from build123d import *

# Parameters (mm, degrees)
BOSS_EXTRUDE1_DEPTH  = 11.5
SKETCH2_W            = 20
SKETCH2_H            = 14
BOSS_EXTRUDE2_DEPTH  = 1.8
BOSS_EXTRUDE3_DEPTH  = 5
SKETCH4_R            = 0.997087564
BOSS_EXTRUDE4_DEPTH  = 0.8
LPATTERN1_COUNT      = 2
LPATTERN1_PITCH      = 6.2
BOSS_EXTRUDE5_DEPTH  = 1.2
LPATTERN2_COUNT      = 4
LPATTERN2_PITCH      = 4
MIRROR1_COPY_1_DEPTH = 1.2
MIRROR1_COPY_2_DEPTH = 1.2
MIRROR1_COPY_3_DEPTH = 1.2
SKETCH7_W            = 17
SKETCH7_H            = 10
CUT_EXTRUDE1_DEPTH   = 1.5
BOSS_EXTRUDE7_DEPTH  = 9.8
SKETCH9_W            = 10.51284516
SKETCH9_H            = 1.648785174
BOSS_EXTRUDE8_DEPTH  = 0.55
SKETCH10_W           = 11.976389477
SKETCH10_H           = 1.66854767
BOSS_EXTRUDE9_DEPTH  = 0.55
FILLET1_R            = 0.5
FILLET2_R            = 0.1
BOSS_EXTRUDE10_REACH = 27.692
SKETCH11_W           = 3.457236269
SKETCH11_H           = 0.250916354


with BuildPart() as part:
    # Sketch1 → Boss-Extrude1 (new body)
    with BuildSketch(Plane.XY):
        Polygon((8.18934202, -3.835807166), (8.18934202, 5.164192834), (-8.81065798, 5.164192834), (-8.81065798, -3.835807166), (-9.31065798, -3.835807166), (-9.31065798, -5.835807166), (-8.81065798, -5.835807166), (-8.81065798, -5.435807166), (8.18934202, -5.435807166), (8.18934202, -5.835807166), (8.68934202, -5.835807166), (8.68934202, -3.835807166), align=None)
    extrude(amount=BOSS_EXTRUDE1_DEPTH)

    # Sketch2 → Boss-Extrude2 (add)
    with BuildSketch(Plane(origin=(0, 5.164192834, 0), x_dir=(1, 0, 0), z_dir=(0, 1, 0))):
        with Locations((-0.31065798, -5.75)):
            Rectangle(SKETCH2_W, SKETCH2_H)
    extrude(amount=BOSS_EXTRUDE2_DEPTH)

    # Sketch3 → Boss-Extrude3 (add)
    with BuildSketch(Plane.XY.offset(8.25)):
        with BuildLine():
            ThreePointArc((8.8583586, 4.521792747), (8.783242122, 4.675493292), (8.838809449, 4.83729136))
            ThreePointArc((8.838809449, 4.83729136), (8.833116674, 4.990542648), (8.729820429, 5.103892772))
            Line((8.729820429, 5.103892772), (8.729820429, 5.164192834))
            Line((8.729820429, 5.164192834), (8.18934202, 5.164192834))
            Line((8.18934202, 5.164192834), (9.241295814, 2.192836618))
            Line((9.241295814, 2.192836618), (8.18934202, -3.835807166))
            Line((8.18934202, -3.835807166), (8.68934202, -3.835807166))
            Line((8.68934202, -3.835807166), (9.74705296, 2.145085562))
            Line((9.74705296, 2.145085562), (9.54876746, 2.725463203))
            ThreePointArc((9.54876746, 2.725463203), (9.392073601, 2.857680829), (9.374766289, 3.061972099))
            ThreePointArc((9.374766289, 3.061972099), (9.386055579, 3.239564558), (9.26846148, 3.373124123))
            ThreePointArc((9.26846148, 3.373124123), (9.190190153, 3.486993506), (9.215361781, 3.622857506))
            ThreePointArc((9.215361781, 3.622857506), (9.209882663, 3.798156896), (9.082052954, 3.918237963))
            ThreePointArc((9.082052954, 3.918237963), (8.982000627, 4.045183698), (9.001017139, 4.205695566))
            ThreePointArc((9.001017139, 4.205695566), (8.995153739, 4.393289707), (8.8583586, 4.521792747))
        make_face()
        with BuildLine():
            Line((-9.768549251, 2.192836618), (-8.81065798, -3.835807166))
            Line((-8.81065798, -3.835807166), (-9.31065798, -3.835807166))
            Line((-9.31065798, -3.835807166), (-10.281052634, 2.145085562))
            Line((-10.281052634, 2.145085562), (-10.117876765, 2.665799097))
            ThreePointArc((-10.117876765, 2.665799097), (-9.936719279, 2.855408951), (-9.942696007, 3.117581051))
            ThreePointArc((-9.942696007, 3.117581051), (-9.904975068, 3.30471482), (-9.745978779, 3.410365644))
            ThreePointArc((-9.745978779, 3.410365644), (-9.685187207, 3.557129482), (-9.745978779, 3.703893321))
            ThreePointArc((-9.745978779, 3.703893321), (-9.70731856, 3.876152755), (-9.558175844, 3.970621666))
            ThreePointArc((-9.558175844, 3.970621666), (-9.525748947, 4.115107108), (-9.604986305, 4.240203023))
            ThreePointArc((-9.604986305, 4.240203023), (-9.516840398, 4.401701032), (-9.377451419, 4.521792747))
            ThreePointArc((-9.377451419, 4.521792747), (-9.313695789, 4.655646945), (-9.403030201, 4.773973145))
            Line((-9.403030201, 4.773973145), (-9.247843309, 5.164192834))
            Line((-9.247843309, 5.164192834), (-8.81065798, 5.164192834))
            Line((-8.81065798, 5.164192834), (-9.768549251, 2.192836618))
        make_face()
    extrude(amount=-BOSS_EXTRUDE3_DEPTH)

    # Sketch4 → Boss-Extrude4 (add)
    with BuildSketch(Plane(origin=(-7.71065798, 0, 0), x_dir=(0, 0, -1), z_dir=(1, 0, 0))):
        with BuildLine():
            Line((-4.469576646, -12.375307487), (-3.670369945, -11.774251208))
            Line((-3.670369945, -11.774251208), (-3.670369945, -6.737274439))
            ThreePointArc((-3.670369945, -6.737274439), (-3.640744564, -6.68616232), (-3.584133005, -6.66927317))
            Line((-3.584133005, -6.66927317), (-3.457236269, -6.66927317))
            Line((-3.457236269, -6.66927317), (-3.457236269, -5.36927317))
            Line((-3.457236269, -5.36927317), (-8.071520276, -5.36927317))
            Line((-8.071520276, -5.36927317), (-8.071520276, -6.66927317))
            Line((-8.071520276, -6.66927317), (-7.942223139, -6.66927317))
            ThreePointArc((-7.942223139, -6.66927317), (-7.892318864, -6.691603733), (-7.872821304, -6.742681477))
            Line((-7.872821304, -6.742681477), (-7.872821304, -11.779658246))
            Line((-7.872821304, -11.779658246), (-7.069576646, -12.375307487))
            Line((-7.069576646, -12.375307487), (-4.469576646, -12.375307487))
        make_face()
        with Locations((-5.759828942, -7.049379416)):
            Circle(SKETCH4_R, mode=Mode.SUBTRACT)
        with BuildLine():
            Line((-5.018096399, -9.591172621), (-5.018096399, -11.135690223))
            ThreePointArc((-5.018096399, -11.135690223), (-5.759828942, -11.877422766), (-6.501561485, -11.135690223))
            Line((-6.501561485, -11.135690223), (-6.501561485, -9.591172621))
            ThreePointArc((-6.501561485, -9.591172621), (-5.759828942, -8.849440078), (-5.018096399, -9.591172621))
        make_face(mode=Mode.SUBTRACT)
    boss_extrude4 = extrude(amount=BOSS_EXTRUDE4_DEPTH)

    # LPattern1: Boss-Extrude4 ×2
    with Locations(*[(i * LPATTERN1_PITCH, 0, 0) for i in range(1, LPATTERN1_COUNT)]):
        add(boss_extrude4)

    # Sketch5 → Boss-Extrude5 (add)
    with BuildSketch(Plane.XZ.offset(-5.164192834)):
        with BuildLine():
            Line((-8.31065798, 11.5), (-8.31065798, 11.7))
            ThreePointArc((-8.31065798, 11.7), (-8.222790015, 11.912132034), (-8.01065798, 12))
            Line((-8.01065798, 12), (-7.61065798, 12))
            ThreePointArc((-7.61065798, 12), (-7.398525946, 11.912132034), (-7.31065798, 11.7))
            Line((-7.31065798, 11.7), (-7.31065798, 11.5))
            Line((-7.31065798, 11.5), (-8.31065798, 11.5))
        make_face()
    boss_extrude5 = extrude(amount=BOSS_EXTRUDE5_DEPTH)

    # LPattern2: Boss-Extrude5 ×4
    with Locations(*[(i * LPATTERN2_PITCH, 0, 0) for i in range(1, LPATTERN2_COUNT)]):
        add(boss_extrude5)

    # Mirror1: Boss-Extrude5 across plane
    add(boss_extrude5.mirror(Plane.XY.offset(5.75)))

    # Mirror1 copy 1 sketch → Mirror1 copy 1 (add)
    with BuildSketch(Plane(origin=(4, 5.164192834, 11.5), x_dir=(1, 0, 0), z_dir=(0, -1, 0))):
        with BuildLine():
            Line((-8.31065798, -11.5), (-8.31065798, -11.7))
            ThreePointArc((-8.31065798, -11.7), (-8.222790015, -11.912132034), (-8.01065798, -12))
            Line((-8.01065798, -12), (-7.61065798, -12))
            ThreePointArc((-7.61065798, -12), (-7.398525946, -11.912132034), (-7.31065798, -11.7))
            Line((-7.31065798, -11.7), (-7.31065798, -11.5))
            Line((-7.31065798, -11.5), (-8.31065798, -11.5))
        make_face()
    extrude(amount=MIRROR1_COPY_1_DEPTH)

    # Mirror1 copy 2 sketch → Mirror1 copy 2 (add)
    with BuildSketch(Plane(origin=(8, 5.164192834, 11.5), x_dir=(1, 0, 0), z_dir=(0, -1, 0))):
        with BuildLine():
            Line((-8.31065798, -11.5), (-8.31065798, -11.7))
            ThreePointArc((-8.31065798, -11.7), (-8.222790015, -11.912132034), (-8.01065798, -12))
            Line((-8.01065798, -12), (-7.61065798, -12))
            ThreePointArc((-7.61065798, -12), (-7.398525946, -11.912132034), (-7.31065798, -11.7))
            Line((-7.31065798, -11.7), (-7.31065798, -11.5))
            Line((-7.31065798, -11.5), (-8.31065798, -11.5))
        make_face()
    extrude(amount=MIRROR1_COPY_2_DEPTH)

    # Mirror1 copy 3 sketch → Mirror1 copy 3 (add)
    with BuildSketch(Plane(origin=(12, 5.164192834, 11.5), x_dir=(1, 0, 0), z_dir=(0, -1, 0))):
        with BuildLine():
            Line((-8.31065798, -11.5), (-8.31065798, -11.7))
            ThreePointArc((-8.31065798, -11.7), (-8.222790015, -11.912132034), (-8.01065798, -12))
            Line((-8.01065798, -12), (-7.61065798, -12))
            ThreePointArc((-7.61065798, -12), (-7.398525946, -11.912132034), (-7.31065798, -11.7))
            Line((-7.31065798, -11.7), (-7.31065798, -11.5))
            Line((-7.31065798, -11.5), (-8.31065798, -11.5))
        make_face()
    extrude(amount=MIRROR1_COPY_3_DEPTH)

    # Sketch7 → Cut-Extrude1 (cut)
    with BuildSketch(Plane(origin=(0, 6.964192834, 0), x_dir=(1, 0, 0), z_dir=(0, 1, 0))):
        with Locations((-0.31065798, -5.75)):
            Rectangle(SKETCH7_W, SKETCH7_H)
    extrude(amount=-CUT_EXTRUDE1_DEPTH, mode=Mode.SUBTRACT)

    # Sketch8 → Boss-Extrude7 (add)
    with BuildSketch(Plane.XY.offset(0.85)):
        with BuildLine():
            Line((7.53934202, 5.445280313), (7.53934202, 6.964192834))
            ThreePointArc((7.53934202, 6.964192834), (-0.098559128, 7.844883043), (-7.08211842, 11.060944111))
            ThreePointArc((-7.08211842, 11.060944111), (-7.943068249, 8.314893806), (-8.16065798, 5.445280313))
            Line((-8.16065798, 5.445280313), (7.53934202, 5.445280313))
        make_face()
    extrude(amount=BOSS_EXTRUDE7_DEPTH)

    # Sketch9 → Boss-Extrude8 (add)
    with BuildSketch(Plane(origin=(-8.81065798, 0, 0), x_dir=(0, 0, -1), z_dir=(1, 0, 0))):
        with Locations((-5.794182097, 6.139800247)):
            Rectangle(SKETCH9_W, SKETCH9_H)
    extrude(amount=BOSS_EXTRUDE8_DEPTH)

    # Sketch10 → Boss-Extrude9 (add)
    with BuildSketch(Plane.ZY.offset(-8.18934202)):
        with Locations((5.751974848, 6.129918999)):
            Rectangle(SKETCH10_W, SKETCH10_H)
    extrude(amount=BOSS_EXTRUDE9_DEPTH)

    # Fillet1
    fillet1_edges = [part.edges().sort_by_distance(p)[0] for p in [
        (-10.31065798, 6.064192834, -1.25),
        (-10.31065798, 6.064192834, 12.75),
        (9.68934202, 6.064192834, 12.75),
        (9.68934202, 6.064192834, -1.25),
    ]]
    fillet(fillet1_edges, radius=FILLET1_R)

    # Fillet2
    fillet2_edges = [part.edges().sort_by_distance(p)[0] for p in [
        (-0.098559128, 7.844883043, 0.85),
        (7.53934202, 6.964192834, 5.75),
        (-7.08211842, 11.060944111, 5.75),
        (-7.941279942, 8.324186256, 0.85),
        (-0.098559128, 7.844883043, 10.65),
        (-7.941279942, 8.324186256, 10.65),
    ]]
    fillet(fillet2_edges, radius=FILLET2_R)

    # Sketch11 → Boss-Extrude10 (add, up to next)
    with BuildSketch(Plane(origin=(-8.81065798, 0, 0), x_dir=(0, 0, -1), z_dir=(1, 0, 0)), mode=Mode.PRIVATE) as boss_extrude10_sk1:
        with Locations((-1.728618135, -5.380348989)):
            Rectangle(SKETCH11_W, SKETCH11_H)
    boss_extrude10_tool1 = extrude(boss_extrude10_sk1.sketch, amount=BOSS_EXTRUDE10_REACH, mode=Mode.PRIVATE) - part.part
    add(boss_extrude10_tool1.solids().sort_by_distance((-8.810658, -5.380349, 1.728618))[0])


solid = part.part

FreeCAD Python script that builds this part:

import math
import FreeCAD as App
import Part
import Sketcher


def edges_at(feature, points):
    """Names of the edges that pass closest to the given points."""
    edges = feature.Shape.Edges
    near = lambda p: min(range(len(edges)), key=lambda i: edges[i].distToShape(Part.Vertex(*p))[0])
    return sorted({f"Edge{near(p) + 1}" for p in points})

doc = App.newDocument("Part")
body = doc.addObject("PartDesign::Body", "Body")

# Sketch on XY plane
sketch1 = body.newObject("Sketcher::SketchObject", "Sketch")
sketch1.AttachmentSupport = (doc.getObject("XY_Plane"), [""])
sketch1.MapMode = "FlatFace"
sketch1.addGeometry(Part.LineSegment(App.Vector(8.19, -3.84, 0), App.Vector(8.19, 5.16, 0)), False)
sketch1.addGeometry(Part.LineSegment(App.Vector(8.19, 5.16, 0), App.Vector(-8.81, 5.16, 0)), False)
sketch1.addGeometry(Part.LineSegment(App.Vector(-8.81, 5.16, 0), App.Vector(-8.81, -3.84, 0)), False)
sketch1.addGeometry(Part.LineSegment(App.Vector(-8.81, -3.84, 0), App.Vector(-9.31, -3.84, 0)), False)
sketch1.addGeometry(Part.LineSegment(App.Vector(-9.31, -3.84, 0), App.Vector(-9.31, -5.84, 0)), False)
sketch1.addGeometry(Part.LineSegment(App.Vector(-9.31, -5.84, 0), App.Vector(-8.81, -5.84, 0)), False)
sketch1.addGeometry(Part.LineSegment(App.Vector(-8.81, -5.84, 0), App.Vector(-8.81, -5.44, 0)), False)
sketch1.addGeometry(Part.LineSegment(App.Vector(-8.81, -5.44, 0), App.Vector(8.19, -5.44, 0)), False)
sketch1.addGeometry(Part.LineSegment(App.Vector(8.19, -5.44, 0), App.Vector(8.19, -5.84, 0)), False)
sketch1.addGeometry(Part.LineSegment(App.Vector(8.19, -5.84, 0), App.Vector(8.69, -5.84, 0)), False)
sketch1.addGeometry(Part.LineSegment(App.Vector(8.69, -5.84, 0), App.Vector(8.69, -3.84, 0)), False)
sketch1.addGeometry(Part.LineSegment(App.Vector(8.69, -3.84, 0), App.Vector(8.19, -3.84, 0)), False)
sketch1.addConstraint(Sketcher.Constraint("Coincident", 0, 2, 1, 1))
sketch1.addConstraint(Sketcher.Constraint("Coincident", 1, 2, 2, 1))
sketch1.addConstraint(Sketcher.Constraint("Coincident", 2, 2, 3, 1))
sketch1.addConstraint(Sketcher.Constraint("Coincident", 3, 2, 4, 1))
sketch1.addConstraint(Sketcher.Constraint("Coincident", 4, 2, 5, 1))
sketch1.addConstraint(Sketcher.Constraint("Coincident", 5, 2, 6, 1))
sketch1.addConstraint(Sketcher.Constraint("Coincident", 6, 2, 7, 1))
sketch1.addConstraint(Sketcher.Constraint("Coincident", 7, 2, 8, 1))
sketch1.addConstraint(Sketcher.Constraint("Coincident", 8, 2, 9, 1))
sketch1.addConstraint(Sketcher.Constraint("Coincident", 9, 2, 10, 1))
sketch1.addConstraint(Sketcher.Constraint("Coincident", 10, 2, 11, 1))
sketch1.addConstraint(Sketcher.Constraint("Coincident", 11, 2, 0, 1))
sketch1.addConstraint(Sketcher.Constraint("Vertical", 0))
sketch1.addConstraint(Sketcher.Constraint("Horizontal", 1))
sketch1.addConstraint(Sketcher.Constraint("Vertical", 2))
sketch1.addConstraint(Sketcher.Constraint("Horizontal", 3))
sketch1.addConstraint(Sketcher.Constraint("Vertical", 4))
sketch1.addConstraint(Sketcher.Constraint("Horizontal", 5))
sketch1.addConstraint(Sketcher.Constraint("Vertical", 6))
sketch1.addConstraint(Sketcher.Constraint("Horizontal", 7))
sketch1.addConstraint(Sketcher.Constraint("Vertical", 8))
sketch1.addConstraint(Sketcher.Constraint("Horizontal", 9))
sketch1.addConstraint(Sketcher.Constraint("Vertical", 10))
sketch1.addConstraint(Sketcher.Constraint("Horizontal", 11))
sketch1.addConstraint(Sketcher.Constraint("Horizontal", 5, 2, 8, 2))
sketch1.addConstraint(Sketcher.Constraint("Horizontal", 3, 2, 10, 2))
sketch1.addConstraint(Sketcher.Constraint("Vertical", 2, 2, 5, 2))
sketch1.addConstraint(Sketcher.Constraint("Vertical", 0, 2, 7, 2))
sketch1.addConstraint(Sketcher.Constraint("Equal", 5, 9))
sketch1.addConstraint(Sketcher.Constraint("DistanceX", 1, 2, 1, 1, 17.0))
sketch1.addConstraint(Sketcher.Constraint("DistanceY", 0, 1, 0, 2, 9.0))
sketch1.addConstraint(Sketcher.Constraint("DistanceY", 4, 2, 4, 1, 2.0))
sketch1.addConstraint(Sketcher.Constraint("DistanceX", 3, 2, 3, 1, 0.5))
sketch1.addConstraint(Sketcher.Constraint("DistanceY", 6, 1, 6, 2, 0.4))
sketch1.addConstraint(Sketcher.Constraint("DistanceX", -1, 1, 0, 2, 8.189342))
sketch1.addConstraint(Sketcher.Constraint("DistanceY", -1, 1, 0, 2, 5.164193))
pad1 = body.newObject("PartDesign::Pad", "Pad")
pad1.Profile = sketch1
pad1.Length = 11.5

# Sketch on XZ plane
sketch2 = body.newObject("Sketcher::SketchObject", "Sketch001")
sketch2.AttachmentSupport = (doc.getObject("XZ_Plane"), [""])
sketch2.MapMode = "FlatFace"
sketch2.AttachmentOffset = App.Placement(App.Vector(0, 0, -5.164193), App.Rotation())
sketch2.addGeometry(Part.LineSegment(App.Vector(-10, -1, 0), App.Vector(-10, 13, 0)), False)
sketch2.addGeometry(Part.LineSegment(App.Vector(-10, 13, 0), App.Vector(10, 13, 0)), False)
sketch2.addGeometry(Part.LineSegment(App.Vector(10, 13, 0), App.Vector(10, -1, 0)), False)
sketch2.addGeometry(Part.LineSegment(App.Vector(10, -1, 0), App.Vector(-10, -1, 0)), False)
sketch2.addConstraint(Sketcher.Constraint("Coincident", 0, 2, 1, 1))
sketch2.addConstraint(Sketcher.Constraint("Coincident", 1, 2, 2, 1))
sketch2.addConstraint(Sketcher.Constraint("Coincident", 2, 2, 3, 1))
sketch2.addConstraint(Sketcher.Constraint("Coincident", 3, 2, 0, 1))
sketch2.addConstraint(Sketcher.Constraint("Vertical", 0))
sketch2.addConstraint(Sketcher.Constraint("Horizontal", 1))
sketch2.addConstraint(Sketcher.Constraint("Vertical", 2))
sketch2.addConstraint(Sketcher.Constraint("Horizontal", 3))
sketch2.addConstraint(Sketcher.Constraint("DistanceX", 1, 1, 1, 2, 20.0))
sketch2.addConstraint(Sketcher.Constraint("DistanceY", 0, 1, 0, 2, 14.0))
sketch2.addConstraint(Sketcher.Constraint("DistanceY", -1, 1, 0, 2, 12.75))
sketch2.addConstraint(Sketcher.Constraint("DistanceX", 0, 2, -1, 1, 10.310658))
pad2 = body.newObject("PartDesign::Pad", "Pad001")
pad2.Profile = sketch2
pad2.Length = 1.8
pad2.Reversed = True

# Sketch on XY plane
sketch3 = body.newObject("Sketcher::SketchObject", "Sketch002")
sketch3.AttachmentSupport = (doc.getObject("XY_Plane"), [""])
sketch3.MapMode = "FlatFace"
sketch3.AttachmentOffset = App.Placement(App.Vector(0, 0, 8.25), App.Rotation())
sketch3.addGeometry(Part.ArcOfCircle(Part.Circle(App.Vector(9.01, 4.69, 0), App.Vector(0, 0, 1), 0.22), math.radians(139), math.radians(229)), False)
sketch3.addGeometry(Part.ArcOfCircle(Part.Circle(App.Vector(8.63, 4.91, 0), App.Vector(0, 0, 1), 0.22), math.radians(-18), math.radians(62)), False)
sketch3.addGeometry(Part.LineSegment(App.Vector(8.73, 5.1, 0), App.Vector(8.73, 5.16, 0)), False)
sketch3.addGeometry(Part.LineSegment(App.Vector(8.73, 5.16, 0), App.Vector(8.19, 5.16, 0)), False)
sketch3.addGeometry(Part.LineSegment(App.Vector(8.19, 5.16, 0), App.Vector(9.24, 2.19, 0)), False)
sketch3.addGeometry(Part.LineSegment(App.Vector(9.24, 2.19, 0), App.Vector(8.19, -3.84, 0)), False)
sketch3.addGeometry(Part.LineSegment(App.Vector(8.19, -3.84, 0), App.Vector(8.69, -3.84, 0)), False)
sketch3.addGeometry(Part.LineSegment(App.Vector(8.69, -3.84, 0), App.Vector(9.75, 2.15, 0)), False)
sketch3.addGeometry(Part.LineSegment(App.Vector(9.75, 2.15, 0), App.Vector(9.55, 2.73, 0)), False)
sketch3.addGeometry(Part.ArcOfCircle(Part.Circle(App.Vector(9.63, 2.98, 0), App.Vector(0, 0, 1), 0.27), math.radians(162), math.radians(252)), False)
sketch3.addGeometry(Part.ArcOfCircle(Part.Circle(App.Vector(9.17, 3.16, 0), App.Vector(0, 0, 1), 0.23), math.radians(-26), math.radians(64)), False)
sketch3.addGeometry(Part.ArcOfCircle(Part.Circle(App.Vector(9.37, 3.52, 0), App.Vector(0, 0, 1), 0.18), math.radians(147), math.radians(237)), False)
sketch3.addGeometry(Part.ArcOfCircle(Part.Circle(App.Vector(9, 3.7, 0), App.Vector(0, 0, 1), 0.23), math.radians(-21), math.radians(69)), False)
sketch3.addGeometry(Part.ArcOfCircle(Part.Circle(App.Vector(9.19, 4.1, 0), App.Vector(0, 0, 1), 0.21), math.radians(151), math.radians(241)), False)
sketch3.addGeometry(Part.ArcOfCircle(Part.Circle(App.Vector(8.77, 4.29, 0), App.Vector(0, 0, 1), 0.25), math.radians(-21), math.radians(69)), False)
sketch3.addGeometry(Part.LineSegment(App.Vector(-8.81, -3.84, 0), App.Vector(-9.77, 2.19, 0)), False)
sketch3.addGeometry(Part.LineSegment(App.Vector(-9.77, 2.19, 0), App.Vector(-8.81, 5.16, 0)), False)
sketch3.addGeometry(Part.LineSegment(App.Vector(-8.81, 5.16, 0), App.Vector(-9.25, 5.16, 0)), False)
sketch3.addGeometry(Part.LineSegment(App.Vector(-9.25, 5.16, 0), App.Vector(-9.4, 4.77, 0)), False)
sketch3.addGeometry(Part.ArcOfCircle(Part.Circle(App.Vector(-9.46, 4.64, 0), App.Vector(0, 0, 1), 0.14), math.radians(-57), math.radians(68)), False)
sketch3.addGeometry(Part.ArcOfCircle(Part.Circle(App.Vector(-9.12, 4.08, 0), App.Vector(0, 0, 1), 0.51), math.radians(120), math.radians(162)), False)
sketch3.addGeometry(Part.ArcOfCircle(Part.Circle(App.Vector(-9.72, 4.08, 0), App.Vector(0, 0, 1), 0.19), math.radians(-35), math.radians(55)), False)
sketch3.addGeometry(Part.ArcOfCircle(Part.Circle(App.Vector(-9.52, 3.74, 0), App.Vector(0, 0, 1), 0.23), math.radians(100), math.radians(190)), False)
sketch3.addGeometry(Part.ArcOfCircle(Part.Circle(App.Vector(-9.89, 3.56, 0), App.Vector(0, 0, 1), 0.21), math.radians(-45), math.radians(45)), False)
sketch3.addGeometry(Part.ArcOfCircle(Part.Circle(App.Vector(-9.7, 3.17, 0), App.Vector(0, 0, 1), 0.25), math.radians(101), math.radians(191)), False)
sketch3.addGeometry(Part.ArcOfCircle(Part.Circle(App.Vector(-10.26, 2.98, 0), App.Vector(0, 0, 1), 0.34), math.radians(-66), math.radians(24)), False)
sketch3.addGeometry(Part.LineSegment(App.Vector(-10.12, 2.67, 0), App.Vector(-10.28, 2.15, 0)), False)
sketch3.addGeometry(Part.LineSegment(App.Vector(-10.28, 2.15, 0), App.Vector(-9.31, -3.84, 0)), False)
sketch3.addGeometry(Part.LineSegment(App.Vector(-9.31, -3.84, 0), App.Vector(-8.81, -3.84, 0)), False)
sketch3.addConstraint(Sketcher.Constraint("Coincident", 0, 1, 1, 1))
sketch3.addConstraint(Sketcher.Constraint("Coincident", 1, 2, 2, 1))
sketch3.addConstraint(Sketcher.Constraint("Coincident", 2, 2, 3, 1))
sketch3.addConstraint(Sketcher.Constraint("Coincident", 3, 2, 4, 1))
sketch3.addConstraint(Sketcher.Constraint("Coincident", 4, 2, 5, 1))
sketch3.addConstraint(Sketcher.Constraint("Coincident", 5, 2, 6, 1))
sketch3.addConstraint(Sketcher.Constraint("Coincident", 6, 2, 7, 1))
sketch3.addConstraint(Sketcher.Constraint("Coincident", 7, 2, 8, 1))
sketch3.addConstraint(Sketcher.Constraint("Coincident", 8, 2, 9, 2))
sketch3.addConstraint(Sketcher.Constraint("Coincident", 9, 1, 10, 1))
sketch3.addConstraint(Sketcher.Constraint("Coincident", 10, 2, 11, 2))
sketch3.addConstraint(Sketcher.Constraint("Coincident", 11, 1, 12, 1))
sketch3.addConstraint(Sketcher.Constraint("Coincident", 12, 2, 13, 2))
sketch3.addConstraint(Sketcher.Constraint("Coincident", 13, 1, 14, 1))
sketch3.addConstraint(Sketcher.Constraint("Coincident", 14, 2, 0, 2))
sketch3.addConstraint(Sketcher.Constraint("Coincident", 15, 2, 16, 1))
sketch3.addConstraint(Sketcher.Constraint("Coincident", 16, 2, 17, 1))
sketch3.addConstraint(Sketcher.Constraint("Coincident", 17, 2, 18, 1))
sketch3.addConstraint(Sketcher.Constraint("Coincident", 18, 2, 19, 2))
sketch3.addConstraint(Sketcher.Constraint("Coincident", 19, 1, 20, 1))
sketch3.addConstraint(Sketcher.Constraint("Coincident", 20, 2, 21, 2))
sketch3.addConstraint(Sketcher.Constraint("Coincident", 21, 1, 22, 1))
sketch3.addConstraint(Sketcher.Constraint("Coincident", 22, 2, 23, 2))
sketch3.addConstraint(Sketcher.Constraint("Coincident", 23, 1, 24, 1))
sketch3.addConstraint(Sketcher.Constraint("Coincident", 24, 2, 25, 2))
sketch3.addConstraint(Sketcher.Constraint("Coincident", 25, 1, 26, 1))
sketch3.addConstraint(Sketcher.Constraint("Coincident", 26, 2, 27, 1))
sketch3.addConstraint(Sketcher.Constraint("Coincident", 27, 2, 28, 1))
sketch3.addConstraint(Sketcher.Constraint("Coincident", 28, 2, 15, 1))
sketch3.addConstraint(Sketcher.Constraint("Vertical", 2))
sketch3.addConstraint(Sketcher.Constraint("Horizontal", 3))
sketch3.addConstraint(Sketcher.Constraint("Horizontal", 6))
sketch3.addConstraint(Sketcher.Constraint("Horizontal", 17))
sketch3.addConstraint(Sketcher.Constraint("Horizontal", 28))
sketch3.addConstraint(Sketcher.Constraint("Horizontal", 4, 2, 15, 2))
sketch3.addConstraint(Sketcher.Constraint("Horizontal", 3, 2, 16, 2))
sketch3.addConstraint(Sketcher.Constraint("Horizontal", 14, 2, 19, 1))
sketch3.addConstraint(Sketcher.Constraint("Horizontal", 12, 3, 22, 2))
sketch3.addConstraint(Sketcher.Constraint("Horizontal", 7, 2, 26, 2))
sketch3.addConstraint(Sketcher.Constraint("Horizontal", 6, 2, 27, 2))
sketch3.addConstraint(Sketcher.Constraint("Vertical", 3, 2, 5, 2))
sketch3.addConstraint(Sketcher.Constraint("Vertical", 12, 3, 13, 1))
sketch3.addConstraint(Sketcher.Constraint("Vertical", 22, 2, 23, 1))
sketch3.addConstraint(Sketcher.Constraint("Vertical", 16, 2, 28, 2))
sketch3.addConstraint(Sketcher.Constraint("Equal", 6, 28))
sketch3.addConstraint(Sketcher.Constraint("DistanceX", 6, 1, 6, 2, 0.5))
sketch3.addConstraint(Sketcher.Constraint("Radius", 0, 0.223519))
sketch3.addConstraint(Sketcher.Constraint("Radius", 1, 0.22304))
sketch3.addConstraint(Sketcher.Constraint("Radius", 12, 0.229152))
sketch3.addConstraint(Sketcher.Constraint("Radius", 24, 0.24942))
sketch3.addConstraint(Sketcher.Constraint("DistanceY", 2, 1, 2, 2, 0.0603))
sketch3.addConstraint(Sketcher.Constraint("Radius", 9, 0.267876))
sketch3.addConstraint(Sketcher.Constraint("Radius", 10, 0.232504))
sketch3.addConstraint(Sketcher.Constraint("Radius", 11, 0.180536))
sketch3.addConstraint(Sketcher.Constraint("Radius", 13, 0.211186))
sketch3.addConstraint(Sketcher.Constraint("Radius", 14, 0.245223))
sketch3.addConstraint(Sketcher.Constraint("Radius", 19, 0.142854))
sketch3.addConstraint(Sketcher.Constraint("Radius", 20, 0.513823))
sketch3.addConstraint(Sketcher.Constraint("Radius", 21, 0.193475))
sketch3.addConstraint(Sketcher.Constraint("Radius", 22, 0.230666))
sketch3.addConstraint(Sketcher.Constraint("Radius", 23, 0.207555))
sketch3.addConstraint(Sketcher.Constraint("Radius", 25, 0.342633))
sketch3.addConstraint(Sketcher.Constraint("DistanceX", 9, 1, 8, 2, 0.174001))
sketch3.addConstraint(Sketcher.Constraint("Distance", 7, 6.0737))
sketch3.addConstraint(Sketcher.Constraint("DistanceX", 3, 2, 3, 1, 0.540478))
sketch3.addConstraint(Sketcher.Constraint("DistanceY", -1, 1, 25, 1, 2.665799))
sketch3.addConstraint(Sketcher.Constraint("DistanceY", 9, 3, 0, 3, 1.708598))
sketch3.addConstraint(Sketcher.Constraint("DistanceY", 11, 3, 1, 3, 1.381602))
sketch3.addConstraint(Sketcher.Constraint("DistanceX", 1, 3, 13, 3, 0.558602))
sketch3.addConstraint(Sketcher.Constraint("DistanceY", 14, 3, 0, 3, 0.396902))
sketch3.addConstraint(Sketcher.Constraint("DistanceX", 20, 3, 12, 3, 18.1182))
sketch3.addConstraint(Sketcher.Constraint("DistanceY", 23, 3, 19, 3, 1.084102))
sketch3.addConstraint(Sketcher.Constraint("DistanceY", 12, 3, 0, 1, 1.133398))
sketch3.addConstraint(Sketcher.Constraint("DistanceY", 0, 1, 1, 2, 0.266601))
sketch3.addConstraint(Sketcher.Constraint("DistanceY", 5, 2, 12, 3, 7.5397))
sketch3.addConstraint(Sketcher.Constraint("DistanceX", 11, 1, 10, 2, 0.0531))
sketch3.addConstraint(Sketcher.Constraint("DistanceY", 14, 2, 0, 1, 0.315499))
sketch3.addConstraint(Sketcher.Constraint("DistanceY", 25, 3, 24, 2, 0.138301))
sketch3.addConstraint(Sketcher.Constraint("DistanceX", 25, 3, 25, 1, 0.138301))
sketch3.addConstraint(Sketcher.Constraint("Distance", 15, 6.104269))
sketch3.addConstraint(Sketcher.Constraint("Distance", 16, 3.121941))
sketch3.addConstraint(Sketcher.Constraint("DistanceX", 17, 2, 17, 1, 0.437185))
sketch3.addConstraint(Sketcher.Constraint("DistanceX", -1, 1, 9, 3, 9.630021))
sketch3.addConstraint(Sketcher.Constraint("DistanceY", -1, 1, 9, 3, 2.980718))
sketch3.addConstraint(Sketcher.Constraint("DistanceX", -1, 1, 11, 3, 9.366778))
sketch3.addConstraint(Sketcher.Constraint("DistanceY", -1, 1, 11, 3, 3.524541))
sketch3.addConstraint(Sketcher.Constraint("DistanceX", -1, 1, 14, 3, 8.771639))
sketch3.addConstraint(Sketcher.Constraint("DistanceX", 19, 3, -1, 1, 9.455821))
sketch3.addConstraint(Sketcher.Constraint("DistanceY", -1, 1, 19, 3, 4.641231))
sketch3.addConstraint(Sketcher.Constraint("DistanceX", 21, 3, -1, 1, 9.716372))
sketch3.addConstraint(Sketcher.Constraint("DistanceX", -1, 1, 0, 1, 8.838809))
sketch3.addConstraint(Sketcher.Constraint("DistanceX", -1, 1, 10, 2, 9.268461))
sketch3.addConstraint(Sketcher.Constraint("DistanceX", 15, 2, -1, 1, 9.768549))
sketch3.addConstraint(Sketcher.Constraint("DistanceX", 18, 2, -1, 1, 9.40303))
sketch3.addConstraint(Sketcher.Constraint("DistanceY", -1, 1, 21, 1, 3.970622))
sketch3.addConstraint(Sketcher.Constraint("DistanceX", 22, 2, -1, 1, 9.745979))
sketch3.addConstraint(Sketcher.Constraint("DistanceY", 10, 3, 0, 3, 1.524921))
sketch3.addConstraint(Sketcher.Constraint("DistanceY", 22, 3, 21, 3, 0.338651))
sketch3.addConstraint(Sketcher.Constraint("DistanceX", 24, 3, 22, 3, 0.179232))
sketch3.addConstraint(Sketcher.Constraint("DistanceX", 12, 3, 4, 2, 0.240279))
sketch3.addConstraint(Sketcher.Constraint("DistanceY", 7, 2, 4, 2, 0.047751))
sketch3.addConstraint(Sketcher.Constraint("Distance", 26, 0.545682))
pad3 = body.newObject("PartDesign::Pad", "Pad002")
pad3.Profile = sketch3
pad3.Length = 5
pad3.Reversed = True

# Sketch on YZ plane
sketch4 = body.newObject("Sketcher::SketchObject", "Sketch003")
sketch4.AttachmentSupport = (doc.getObject("YZ_Plane"), [""])
sketch4.MapMode = "FlatFace"
sketch4.AttachmentOffset = App.Placement(App.Vector(0, 0, -7.710658), App.Rotation())
sketch4.addGeometry(Part.LineSegment(App.Vector(-12.38, 4.47, 0), App.Vector(-11.77, 3.67, 0)), False)
sketch4.addGeometry(Part.LineSegment(App.Vector(-11.77, 3.67, 0), App.Vector(-6.74, 3.67, 0)), False)
sketch4.addGeometry(Part.ArcOfCircle(Part.Circle(App.Vector(-6.75, 3.59, 0), App.Vector(0, 0, 1), 0.08), math.radians(-5), math.radians(82)), False)
sketch4.addGeometry(Part.LineSegment(App.Vector(-6.67, 3.58, 0), App.Vector(-6.67, 3.46, 0)), False)
sketch4.addGeometry(Part.LineSegment(App.Vector(-6.67, 3.46, 0), App.Vector(-5.37, 3.46, 0)), False)
sketch4.addGeometry(Part.LineSegment(App.Vector(-5.37, 3.46, 0), App.Vector(-5.37, 8.07, 0)), False)
sketch4.addGeometry(Part.LineSegment(App.Vector(-5.37, 8.07, 0), App.Vector(-6.67, 8.07, 0)), False)
sketch4.addGeometry(Part.LineSegment(App.Vector(-6.67, 8.07, 0), App.Vector(-6.67, 7.94, 0)), False)
sketch4.addGeometry(Part.ArcOfCircle(Part.Circle(App.Vector(-6.74, 7.94, 0), App.Vector(0, 0, 1), 0.07), math.radians(-92), math.radians(-2)), False)
sketch4.addGeometry(Part.LineSegment(App.Vector(-6.74, 7.87, 0), App.Vector(-11.78, 7.87, 0)), False)
sketch4.addGeometry(Part.LineSegment(App.Vector(-11.78, 7.87, 0), App.Vector(-12.38, 7.07, 0)), False)
sketch4.addGeometry(Part.LineSegment(App.Vector(-12.38, 7.07, 0), App.Vector(-12.38, 4.47, 0)), False)
sketch4.addGeometry(Part.ArcOfCircle(Part.Circle(App.Vector(-9.59, 5.76, 0), App.Vector(0, 0, 1), 0.74), math.radians(-90), math.radians(90)), False)
sketch4.addGeometry(Part.LineSegment(App.Vector(-9.59, 5.02, 0), App.Vector(-11.14, 5.02, 0)), False)
sketch4.addGeometry(Part.ArcOfCircle(Part.Circle(App.Vector(-11.14, 5.76, 0), App.Vector(0, 0, 1), 0.74), math.radians(90), math.radians(270)), False)
sketch4.addGeometry(Part.LineSegment(App.Vector(-11.14, 6.5, 0), App.Vector(-9.59, 6.5, 0)), False)
sketch4.addGeometry(Part.Circle(App.Vector(-7.05, 5.76, 0), App.Vector(0, 0, 1), 1), False)
sketch4.addConstraint(Sketcher.Constraint("Coincident", 0, 2, 1, 1))
sketch4.addConstraint(Sketcher.Constraint("Coincident", 1, 2, 2, 2))
sketch4.addConstraint(Sketcher.Constraint("Coincident", 2, 1, 3, 1))
sketch4.addConstraint(Sketcher.Constraint("Coincident", 3, 2, 4, 1))
sketch4.addConstraint(Sketcher.Constraint("Coincident", 4, 2, 5, 1))
sketch4.addConstraint(Sketcher.Constraint("Coincident", 5, 2, 6, 1))
sketch4.addConstraint(Sketcher.Constraint("Coincident", 6, 2, 7, 1))
sketch4.addConstraint(Sketcher.Constraint("Coincident", 7, 2, 8, 2))
sketch4.addConstraint(Sketcher.Constraint("Coincident", 8, 1, 9, 1))
sketch4.addConstraint(Sketcher.Constraint("Coincident", 9, 2, 10, 1))
sketch4.addConstraint(Sketcher.Constraint("Coincident", 10, 2, 11, 1))
sketch4.addConstraint(Sketcher.Constraint("Coincident", 11, 2, 0, 1))
sketch4.addConstraint(Sketcher.Constraint("Tangent", 12, 1, 13, 1))
sketch4.addConstraint(Sketcher.Constraint("Tangent", 13, 2, 14, 2))
sketch4.addConstraint(Sketcher.Constraint("Tangent", 14, 1, 15, 1))
sketch4.addConstraint(Sketcher.Constraint("Tangent", 15, 2, 12, 2))
sketch4.addConstraint(Sketcher.Constraint("Horizontal", 1))
sketch4.addConstraint(Sketcher.Constraint("Vertical", 3))
sketch4.addConstraint(Sketcher.Constraint("Horizontal", 4))
sketch4.addConstraint(Sketcher.Constraint("Vertical", 5))
sketch4.addConstraint(Sketcher.Constraint("Horizontal", 6))
sketch4.addConstraint(Sketcher.Constraint("Vertical", 7))
sketch4.addConstraint(Sketcher.Constraint("Horizontal", 9))
sketch4.addConstraint(Sketcher.Constraint("Vertical", 11))
sketch4.addConstraint(Sketcher.Constraint("Horizontal", 13))
sketch4.addConstraint(Sketcher.Constraint("Horizontal", 15))
sketch4.addConstraint(Sketcher.Constraint("Horizontal", 14, 3, 16, 3))
sketch4.addConstraint(Sketcher.Constraint("Vertical", 3, 2, 6, 2))
sketch4.addConstraint(Sketcher.Constraint("Equal", 1, 9))
sketch4.addConstraint(Sketcher.Constraint("Equal", 0, 10))
sketch4.addConstraint(Sketcher.Constraint("Distance", 0, 1.0))
sketch4.addConstraint(Sketcher.Constraint("DistanceX", 4, 1, 4, 2, 1.3))
sketch4.addConstraint(Sketcher.Constraint("DistanceY", 11, 2, 11, 1, 2.6))
sketch4.addConstraint(Sketcher.Constraint("Radius", 2, 0.08008))
sketch4.addConstraint(Sketcher.Constraint("Diameter", 16, 1.994175))
sketch4.addConstraint(Sketcher.Constraint("Radius", 8, 0.071433))
sketch4.addConstraint(Sketcher.Constraint("Radius", 12, 0.741733))
sketch4.addConstraint(Sketcher.Constraint("DistanceX", 1, 2, 2, 1, 0.068001))
sketch4.addConstraint(Sketcher.Constraint("DistanceX", 16, 3, 8, 3, 0.308701))
sketch4.addConstraint(Sketcher.Constraint("DistanceX", 12, 3, 1, 2, 2.853898))
sketch4.addConstraint(Sketcher.Constraint("DistanceY", 8, 1, 7, 2, 0.069402))
sketch4.addConstraint(Sketcher.Constraint("DistanceY", 8, 1, 6, 2, 0.198699))
sketch4.addConstraint(Sketcher.Constraint("DistanceX", 1, 1, 1, 2, 5.036977))
sketch4.addConstraint(Sketcher.Constraint("DistanceX", 13, 2, 13, 1, 1.544518))
sketch4.addConstraint(Sketcher.Constraint("DistanceY", 3, 2, 3, 1, 0.126897))
sketch4.addConstraint(Sketcher.Constraint("DistanceY", 5, 1, 5, 2, 4.614284))
sketch4.addConstraint(Sketcher.Constraint("DistanceY", -1, 1, 2, 3, 3.59116))
sketch4.addConstraint(Sketcher.Constraint("DistanceX", 8, 3, -1, 1, 6.740678))
sketch4.addConstraint(Sketcher.Constraint("DistanceY", -1, 1, 12, 3, 5.759829))
sketch4.addConstraint(Sketcher.Constraint("DistanceY", -1, 1, 5, 2, 8.07152))
sketch4.addConstraint(Sketcher.Constraint("DistanceX", 8, 1, -1, 1, 6.742681))
pad4 = body.newObject("PartDesign::Pad", "Pad003")
pad4.Profile = sketch4
pad4.Length = 0.8
doc.recompute()

linearpattern = body.newObject("PartDesign::LinearPattern", "LinearPattern")
linearpattern.Originals = [pad4]
linearpattern.Direction = (doc.getObject("X_Axis"), [""])
linearpattern.Mode = "offset"
linearpattern.Offset = 6.2
linearpattern.Occurrences = 2
body.Tip = linearpattern

# Sketch on XZ plane
sketch5 = body.newObject("Sketcher::SketchObject", "Sketch004")
sketch5.AttachmentSupport = (doc.getObject("XZ_Plane"), [""])
sketch5.MapMode = "FlatFace"
sketch5.AttachmentOffset = App.Placement(App.Vector(0, 0, -5.164193), App.Rotation())
sketch5.addGeometry(Part.LineSegment(App.Vector(-8.31, 11.7, 0), App.Vector(-8.31, 11.5, 0)), False)
sketch5.addGeometry(Part.LineSegment(App.Vector(-8.31, 11.5, 0), App.Vector(-7.31, 11.5, 0)), False)
sketch5.addGeometry(Part.LineSegment(App.Vector(-7.31, 11.5, 0), App.Vector(-7.31, 11.7, 0)), False)
sketch5.addGeometry(Part.ArcOfCircle(Part.Circle(App.Vector(-7.61, 11.7, 0), App.Vector(0, 0, 1), 0.3), math.radians(0), math.radians(90)), False)
sketch5.addGeometry(Part.LineSegment(App.Vector(-7.61, 12, 0), App.Vector(-8.01, 12, 0)), False)
sketch5.addGeometry(Part.ArcOfCircle(Part.Circle(App.Vector(-8.01, 11.7, 0), App.Vector(0, 0, 1), 0.3), math.radians(90), math.radians(180)), False)
sketch5.addConstraint(Sketcher.Constraint("Coincident", 0, 2, 1, 1))
sketch5.addConstraint(Sketcher.Constraint("Coincident", 1, 2, 2, 1))
sketch5.addConstraint(Sketcher.Constraint("Tangent", 2, 2, 3, 1))
sketch5.addConstraint(Sketcher.Constraint("Tangent", 3, 2, 4, 1))
sketch5.addConstraint(Sketcher.Constraint("Tangent", 4, 2, 5, 1))
sketch5.addConstraint(Sketcher.Constraint("Tangent", 5, 2, 0, 1))
sketch5.addConstraint(Sketcher.Constraint("Vertical", 0))
sketch5.addConstraint(Sketcher.Constraint("Horizontal", 1))
sketch5.addConstraint(Sketcher.Constraint("Vertical", 2))
sketch5.addConstraint(Sketcher.Constraint("Horizontal", 4))
sketch5.addConstraint(Sketcher.Constraint("Equal", 3, 5))
sketch5.addConstraint(Sketcher.Constraint("Radius", 3, 0.3))
sketch5.addConstraint(Sketcher.Constraint("DistanceX", 1, 1, 1, 2, 1.0))
sketch5.addConstraint(Sketcher.Constraint("DistanceY", 0, 2, 0, 1, 0.2))
sketch5.addConstraint(Sketcher.Constraint("DistanceY", -1, 1, 3, 2, 12.0))
sketch5.addConstraint(Sketcher.Constraint("DistanceX", 3, 3, -1, 1, 7.610658))
pad5 = body.newObject("PartDesign::Pad", "Pad004")
pad5.Profile = sketch5
pad5.Length = 1.2
doc.recompute()

linearpattern2 = body.newObject("PartDesign::LinearPattern", "LinearPattern001")
linearpattern2.Originals = [pad5]
linearpattern2.Direction = (doc.getObject("X_Axis"), [""])
linearpattern2.Mode = "offset"
linearpattern2.Offset = 4
linearpattern2.Occurrences = 4
body.Tip = linearpattern2
doc.recompute()

datumplane = body.newObject("PartDesign::Plane", "DatumPlane")
datumplane.AttachmentSupport = (doc.getObject("XY_Plane"), [""])
datumplane.MapMode = "FlatFace"
datumplane.AttachmentOffset = App.Placement(App.Vector(0, 0, 5.75), App.Rotation())
mirrored = body.newObject("PartDesign::Mirrored", "Mirrored")
mirrored.Originals = [pad5]
mirrored.MirrorPlane = (datumplane, [""])
body.Tip = mirrored

# Sketch on XZ plane
sketch6 = body.newObject("Sketcher::SketchObject", "Sketch005")
sketch6.AttachmentSupport = (doc.getObject("XZ_Plane"), [""])
sketch6.MapMode = "FlatFace"
sketch6.AttachmentOffset = App.Placement(App.Vector(0, 0, -5.164193), App.Rotation())
sketch6.addGeometry(Part.LineSegment(App.Vector(-4.31, 0, 0), App.Vector(-4.31, -0.2, 0)), False)
sketch6.addGeometry(Part.ArcOfCircle(Part.Circle(App.Vector(-4.01, -0.2, 0), App.Vector(0, 0, 1), 0.3), math.radians(180), math.radians(270)), False)
sketch6.addGeometry(Part.LineSegment(App.Vector(-4.01, -0.5, 0), App.Vector(-3.61, -0.5, 0)), False)
sketch6.addGeometry(Part.ArcOfCircle(Part.Circle(App.Vector(-3.61, -0.2, 0), App.Vector(0, 0, 1), 0.3), math.radians(-90), math.radians(0)), False)
sketch6.addGeometry(Part.LineSegment(App.Vector(-3.31, -0.2, 0), App.Vector(-3.31, 0, 0)), False)
sketch6.addGeometry(Part.LineSegment(App.Vector(-3.31, 0, 0), App.Vector(-4.31, 0, 0)), False)
sketch6.addConstraint(Sketcher.Constraint("Tangent", 0, 2, 1, 1))
sketch6.addConstraint(Sketcher.Constraint("Tangent", 1, 2, 2, 1))
sketch6.addConstraint(Sketcher.Constraint("Tangent", 2, 2, 3, 1))
sketch6.addConstraint(Sketcher.Constraint("Tangent", 3, 2, 4, 1))
sketch6.addConstraint(Sketcher.Constraint("Coincident", 4, 2, 5, 1))
sketch6.addConstraint(Sketcher.Constraint("Coincident", 5, 2, 0, 1))
sketch6.addConstraint(Sketcher.Constraint("Vertical", 0))
sketch6.addConstraint(Sketcher.Constraint("Horizontal", 2))
sketch6.addConstraint(Sketcher.Constraint("Vertical", 4))
sketch6.addConstraint(Sketcher.Constraint("Horizontal", 5))
sketch6.addConstraint(Sketcher.Constraint("Equal", 1, 3))
sketch6.addConstraint(Sketcher.Constraint("PointOnObject", 4, 2, -1))
sketch6.addConstraint(Sketcher.Constraint("Radius", 1, 0.3))
sketch6.addConstraint(Sketcher.Constraint("DistanceX", 5, 2, 5, 1, 1.0))
sketch6.addConstraint(Sketcher.Constraint("DistanceY", 0, 2, 0, 1, 0.2))
sketch6.addConstraint(Sketcher.Constraint("DistanceX", 1, 3, -1, 1, 4.010658))
pad6 = body.newObject("PartDesign::Pad", "Pad005")
pad6.Profile = sketch6
pad6.Length = 1.2

# Sketch on XZ plane
sketch7 = body.newObject("Sketcher::SketchObject", "Sketch006")
sketch7.AttachmentSupport = (doc.getObject("XZ_Plane"), [""])
sketch7.MapMode = "FlatFace"
sketch7.AttachmentOffset = App.Placement(App.Vector(0, 0, -5.164193), App.Rotation())
sketch7.addGeometry(Part.LineSegment(App.Vector(-0.31, 0, 0), App.Vector(-0.31, -0.2, 0)), False)
sketch7.addGeometry(Part.ArcOfCircle(Part.Circle(App.Vector(-0.01, -0.2, 0), App.Vector(0, 0, 1), 0.3), math.radians(180), math.radians(270)), False)
sketch7.addGeometry(Part.LineSegment(App.Vector(-0.01, -0.5, 0), App.Vector(0.39, -0.5, 0)), False)
sketch7.addGeometry(Part.ArcOfCircle(Part.Circle(App.Vector(0.39, -0.2, 0), App.Vector(0, 0, 1), 0.3), math.radians(-90), math.radians(0)), False)
sketch7.addGeometry(Part.LineSegment(App.Vector(0.69, -0.2, 0), App.Vector(0.69, 0, 0)), False)
sketch7.addGeometry(Part.LineSegment(App.Vector(0.69, 0, 0), App.Vector(-0.31, 0, 0)), False)
sketch7.addConstraint(Sketcher.Constraint("Tangent", 0, 2, 1, 1))
sketch7.addConstraint(Sketcher.Constraint("Tangent", 1, 2, 2, 1))
sketch7.addConstraint(Sketcher.Constraint("Tangent", 2, 2, 3, 1))
sketch7.addConstraint(Sketcher.Constraint("Tangent", 3, 2, 4, 1))
sketch7.addConstraint(Sketcher.Constraint("Coincident", 4, 2, 5, 1))
sketch7.addConstraint(Sketcher.Constraint("Coincident", 5, 2, 0, 1))
sketch7.addConstraint(Sketcher.Constraint("Vertical", 0))
sketch7.addConstraint(Sketcher.Constraint("Horizontal", 2))
sketch7.addConstraint(Sketcher.Constraint("Vertical", 4))
sketch7.addConstraint(Sketcher.Constraint("Horizontal", 5))
sketch7.addConstraint(Sketcher.Constraint("Equal", 1, 3))
sketch7.addConstraint(Sketcher.Constraint("PointOnObject", 4, 2, -1))
sketch7.addConstraint(Sketcher.Constraint("Radius", 1, 0.3))
sketch7.addConstraint(Sketcher.Constraint("DistanceX", 5, 2, 5, 1, 1.0))
sketch7.addConstraint(Sketcher.Constraint("DistanceY", 0, 2, 0, 1, 0.2))
sketch7.addConstraint(Sketcher.Constraint("DistanceX", 1, 3, -1, 1, 0.010658))
pad7 = body.newObject("PartDesign::Pad", "Pad006")
pad7.Profile = sketch7
pad7.Length = 1.2

# Sketch on XZ plane
sketch8 = body.newObject("Sketcher::SketchObject", "Sketch007")
sketch8.AttachmentSupport = (doc.getObject("XZ_Plane"), [""])
sketch8.MapMode = "FlatFace"
sketch8.AttachmentOffset = App.Placement(App.Vector(0, 0, -5.164193), App.Rotation())
sketch8.addGeometry(Part.LineSegment(App.Vector(3.69, 0, 0), App.Vector(3.69, -0.2, 0)), False)
sketch8.addGeometry(Part.ArcOfCircle(Part.Circle(App.Vector(3.99, -0.2, 0), App.Vector(0, 0, 1), 0.3), math.radians(180), math.radians(270)), False)
sketch8.addGeometry(Part.LineSegment(App.Vector(3.99, -0.5, 0), App.Vector(4.39, -0.5, 0)), False)
sketch8.addGeometry(Part.ArcOfCircle(Part.Circle(App.Vector(4.39, -0.2, 0), App.Vector(0, 0, 1), 0.3), math.radians(-90), math.radians(0)), False)
sketch8.addGeometry(Part.LineSegment(App.Vector(4.69, -0.2, 0), App.Vector(4.69, 0, 0)), False)
sketch8.addGeometry(Part.LineSegment(App.Vector(4.69, 0, 0), App.Vector(3.69, 0, 0)), False)
sketch8.addConstraint(Sketcher.Constraint("Tangent", 0, 2, 1, 1))
sketch8.addConstraint(Sketcher.Constraint("Tangent", 1, 2, 2, 1))
sketch8.addConstraint(Sketcher.Constraint("Tangent", 2, 2, 3, 1))
sketch8.addConstraint(Sketcher.Constraint("Tangent", 3, 2, 4, 1))
sketch8.addConstraint(Sketcher.Constraint("Coincident", 4, 2, 5, 1))
sketch8.addConstraint(Sketcher.Constraint("Coincident", 5, 2, 0, 1))
sketch8.addConstraint(Sketcher.Constraint("Vertical", 0))
sketch8.addConstraint(Sketcher.Constraint("Horizontal", 2))
sketch8.addConstraint(Sketcher.Constraint("Vertical", 4))
sketch8.addConstraint(Sketcher.Constraint("Horizontal", 5))
sketch8.addConstraint(Sketcher.Constraint("Equal", 1, 3))
sketch8.addConstraint(Sketcher.Constraint("PointOnObject", 4, 2, -1))
sketch8.addConstraint(Sketcher.Constraint("Radius", 1, 0.3))
sketch8.addConstraint(Sketcher.Constraint("DistanceX", 5, 2, 5, 1, 1.0))
sketch8.addConstraint(Sketcher.Constraint("DistanceY", 0, 2, 0, 1, 0.2))
sketch8.addConstraint(Sketcher.Constraint("DistanceX", -1, 1, 1, 3, 3.989342))
pad8 = body.newObject("PartDesign::Pad", "Pad007")
pad8.Profile = sketch8
pad8.Length = 1.2

# Sketch on XZ plane
sketch9 = body.newObject("Sketcher::SketchObject", "Sketch008")
sketch9.AttachmentSupport = (doc.getObject("XZ_Plane"), [""])
sketch9.MapMode = "FlatFace"
sketch9.AttachmentOffset = App.Placement(App.Vector(0, 0, -6.964193), App.Rotation())
sketch9.addGeometry(Part.LineSegment(App.Vector(-9, 1, 0), App.Vector(-9, 11, 0)), False)
sketch9.addGeometry(Part.LineSegment(App.Vector(-9, 11, 0), App.Vector(8, 11, 0)), False)
sketch9.addGeometry(Part.LineSegment(App.Vector(8, 11, 0), App.Vector(8, 1, 0)), False)
sketch9.addGeometry(Part.LineSegment(App.Vector(8, 1, 0), App.Vector(-9, 1, 0)), False)
sketch9.addConstraint(Sketcher.Constraint("Coincident", 0, 2, 1, 1))
sketch9.addConstraint(Sketcher.Constraint("Coincident", 1, 2, 2, 1))
sketch9.addConstraint(Sketcher.Constraint("Coincident", 2, 2, 3, 1))
sketch9.addConstraint(Sketcher.Constraint("Coincident", 3, 2, 0, 1))
sketch9.addConstraint(Sketcher.Constraint("Vertical", 0))
sketch9.addConstraint(Sketcher.Constraint("Horizontal", 1))
sketch9.addConstraint(Sketcher.Constraint("Vertical", 2))
sketch9.addConstraint(Sketcher.Constraint("Horizontal", 3))
sketch9.addConstraint(Sketcher.Constraint("DistanceX", 1, 1, 1, 2, 17.0))
sketch9.addConstraint(Sketcher.Constraint("DistanceY", 0, 1, 0, 2, 10.0))
sketch9.addConstraint(Sketcher.Constraint("DistanceY", -1, 1, 0, 2, 10.75))
sketch9.addConstraint(Sketcher.Constraint("DistanceX", 0, 2, -1, 1, 8.810658))
pocket1 = body.newObject("PartDesign::Pocket", "Pocket")
pocket1.Profile = sketch9
pocket1.Length = 1.5
pocket1.Reversed = True

# Sketch on XY plane
sketch10 = body.newObject("Sketcher::SketchObject", "Sketch009")
sketch10.AttachmentSupport = (doc.getObject("XY_Plane"), [""])
sketch10.MapMode = "FlatFace"
sketch10.AttachmentOffset = App.Placement(App.Vector(0, 0, 0.85), App.Rotation())
sketch10.addGeometry(Part.LineSegment(App.Vector(7.5, 5.4, 0), App.Vector(7.5, 7, 0)), False)
sketch10.addGeometry(Part.ArcOfCircle(Part.Circle(App.Vector(6.5, 31.3, 0), App.Vector(0, 0, 1), 24.4), math.radians(-124), math.radians(-88)), False)
sketch10.addGeometry(Part.ArcOfCircle(Part.Circle(App.Vector(4.5, 5.9, 0), App.Vector(0, 0, 1), 12.6), math.radians(156), math.radians(182)), False)
sketch10.addGeometry(Part.LineSegment(App.Vector(-8.2, 5.4, 0), App.Vector(7.5, 5.4, 0)), False)
sketch10.addConstraint(Sketcher.Constraint("Coincident", 0, 2, 1, 2))
sketch10.addConstraint(Sketcher.Constraint("Coincident", 1, 1, 2, 1))
sketch10.addConstraint(Sketcher.Constraint("Coincident", 2, 2, 3, 1))
sketch10.addConstraint(Sketcher.Constraint("Coincident", 3, 2, 0, 1))
sketch10.addConstraint(Sketcher.Constraint("Vertical", 0))
sketch10.addConstraint(Sketcher.Constraint("Horizontal", 3))
sketch10.addConstraint(Sketcher.Constraint("DistanceX", 3, 1, 3, 2, 15.7))
sketch10.addConstraint(Sketcher.Constraint("Radius", 2, 12.642031))
sketch10.addConstraint(Sketcher.Constraint("Radius", 1, 24.373458))
sketch10.addConstraint(Sketcher.Constraint("DistanceY", 0, 1, 0, 2, 1.518913))
sketch10.addConstraint(Sketcher.Constraint("DistanceX", -1, 1, 2, 3, 4.47206))
sketch10.addConstraint(Sketcher.Constraint("DistanceX", 1, 1, -1, 1, 7.082118))
sketch10.addConstraint(Sketcher.Constraint("DistanceY", -1, 1, 2, 2, 5.44528))
sketch10.addConstraint(Sketcher.Constraint("DistanceY", 0, 2, 1, 3, 24.35031))
pad9 = body.newObject("PartDesign::Pad", "Pad008")
pad9.Profile = sketch10
pad9.Length = 9.8

# Sketch on YZ plane
sketch11 = body.newObject("Sketcher::SketchObject", "Sketch010")
sketch11.AttachmentSupport = (doc.getObject("YZ_Plane"), [""])
sketch11.MapMode = "FlatFace"
sketch11.AttachmentOffset = App.Placement(App.Vector(0, 0, -8.810658), App.Rotation())
sketch11.addGeometry(Part.LineSegment(App.Vector(7, 11.1, 0), App.Vector(5.3, 11.1, 0)), False)
sketch11.addGeometry(Part.LineSegment(App.Vector(5.3, 11.1, 0), App.Vector(5.3, 0.5, 0)), False)
sketch11.addGeometry(Part.LineSegment(App.Vector(5.3, 0.5, 0), App.Vector(7, 0.5, 0)), False)
sketch11.addGeometry(Part.LineSegment(App.Vector(7, 0.5, 0), App.Vector(7, 11.1, 0)), False)
sketch11.addConstraint(Sketcher.Constraint("Coincident", 0, 2, 1, 1))
sketch11.addConstraint(Sketcher.Constraint("Coincident", 1, 2, 2, 1))
sketch11.addConstraint(Sketcher.Constraint("Coincident", 2, 2, 3, 1))
sketch11.addConstraint(Sketcher.Constraint("Coincident", 3, 2, 0, 1))
sketch11.addConstraint(Sketcher.Constraint("Horizontal", 0))
sketch11.addConstraint(Sketcher.Constraint("Vertical", 1))
sketch11.addConstraint(Sketcher.Constraint("Horizontal", 2))
sketch11.addConstraint(Sketcher.Constraint("Vertical", 3))
sketch11.addConstraint(Sketcher.Constraint("DistanceX", 0, 2, 0, 1, 1.648785))
sketch11.addConstraint(Sketcher.Constraint("DistanceY", 1, 2, 1, 1, 10.512845))
sketch11.addConstraint(Sketcher.Constraint("DistanceY", -1, 1, 1, 2, 0.53776))
sketch11.addConstraint(Sketcher.Constraint("DistanceX", -1, 1, 0, 2, 5.315408))
pad10 = body.newObject("PartDesign::Pad", "Pad009")
pad10.Profile = sketch11
pad10.Length = 0.55

# Sketch on YZ plane
sketch12 = body.newObject("Sketcher::SketchObject", "Sketch011")
sketch12.AttachmentSupport = (doc.getObject("YZ_Plane"), [""])
sketch12.MapMode = "FlatFace"
sketch12.AttachmentOffset = App.Placement(App.Vector(0, 0, 8.189342), App.Rotation())
sketch12.addGeometry(Part.LineSegment(App.Vector(7, -0.2, 0), App.Vector(5.3, -0.2, 0)), False)
sketch12.addGeometry(Part.LineSegment(App.Vector(5.3, -0.2, 0), App.Vector(5.3, 11.7, 0)), False)
sketch12.addGeometry(Part.LineSegment(App.Vector(5.3, 11.7, 0), App.Vector(7, 11.7, 0)), False)
sketch12.addGeometry(Part.LineSegment(App.Vector(7, 11.7, 0), App.Vector(7, -0.2, 0)), False)
sketch12.addConstraint(Sketcher.Constraint("Coincident", 0, 2, 1, 1))
sketch12.addConstraint(Sketcher.Constraint("Coincident", 1, 2, 2, 1))
sketch12.addConstraint(Sketcher.Constraint("Coincident", 2, 2, 3, 1))
sketch12.addConstraint(Sketcher.Constraint("Coincident", 3, 2, 0, 1))
sketch12.addConstraint(Sketcher.Constraint("Horizontal", 0))
sketch12.addConstraint(Sketcher.Constraint("Vertical", 1))
sketch12.addConstraint(Sketcher.Constraint("Horizontal", 2))
sketch12.addConstraint(Sketcher.Constraint("Vertical", 3))
sketch12.addConstraint(Sketcher.Constraint("DistanceY", 1, 1, 1, 2, 11.976389))
sketch12.addConstraint(Sketcher.Constraint("DistanceX", 0, 2, 0, 1, 1.668548))
sketch12.addConstraint(Sketcher.Constraint("DistanceY", 0, 2, -1, 1, 0.23622))
sketch12.addConstraint(Sketcher.Constraint("DistanceX", -1, 1, 0, 2, 5.295645))
pad11 = body.newObject("PartDesign::Pad", "Pad010")
pad11.Profile = sketch12
pad11.Length = 0.55
pad11.Reversed = True
doc.recompute()

fillet = body.newObject("PartDesign::Fillet", "Fillet")
fillet.Base = (pad11, edges_at(pad11, [
    (-10.311, 6.064, -1.25),
    (-10.311, 6.064, 12.75),
    (9.689, 6.064, 12.75),
    (9.689, 6.064, -1.25),
]))
fillet.Radius = 0.5
doc.recompute()

fillet2 = body.newObject("PartDesign::Fillet", "Fillet001")
fillet2.Base = (fillet, edges_at(fillet, [
    (-0.099, 7.845, 0.85),
    (7.539, 6.964, 5.75),
    (-7.082, 11.061, 5.75),
    (-7.941, 8.324, 0.85),
    (-0.099, 7.845, 10.65),
    (-7.941, 8.324, 10.65),
]))
fillet2.Radius = 0.1

# Sketch on YZ plane
sketch13 = body.newObject("Sketcher::SketchObject", "Sketch012")
sketch13.AttachmentSupport = (doc.getObject("YZ_Plane"), [""])
sketch13.MapMode = "FlatFace"
sketch13.AttachmentOffset = App.Placement(App.Vector(0, 0, -8.810658), App.Rotation())
sketch13.addGeometry(Part.LineSegment(App.Vector(-5.25, 3.46, 0), App.Vector(-5.51, 3.46, 0)), False)
sketch13.addGeometry(Part.LineSegment(App.Vector(-5.51, 3.46, 0), App.Vector(-5.51, 0, 0)), False)
sketch13.addGeometry(Part.LineSegment(App.Vector(-5.51, 0, 0), App.Vector(-5.25, 0, 0)), False)
sketch13.addGeometry(Part.LineSegment(App.Vector(-5.25, 0, 0), App.Vector(-5.25, 3.46, 0)), False)
sketch13.addConstraint(Sketcher.Constraint("Coincident", 0, 2, 1, 1))
sketch13.addConstraint(Sketcher.Constraint("Coincident", 1, 2, 2, 1))
sketch13.addConstraint(Sketcher.Constraint("Coincident", 2, 2, 3, 1))
sketch13.addConstraint(Sketcher.Constraint("Coincident", 3, 2, 0, 1))
sketch13.addConstraint(Sketcher.Constraint("Horizontal", 0))
sketch13.addConstraint(Sketcher.Constraint("Vertical", 1))
sketch13.addConstraint(Sketcher.Constraint("Horizontal", 2))
sketch13.addConstraint(Sketcher.Constraint("Vertical", 3))
sketch13.addConstraint(Sketcher.Constraint("PointOnObject", 1, 2, -1))
sketch13.addConstraint(Sketcher.Constraint("DistanceX", 0, 2, 0, 1, 0.250916))
sketch13.addConstraint(Sketcher.Constraint("DistanceY", 1, 2, 1, 1, 3.457236))
sketch13.addConstraint(Sketcher.Constraint("DistanceX", 2, 2, -1, 1, 5.254891))
pad12 = body.newObject("PartDesign::Pad", "Pad011")
pad12.Profile = sketch13
pad12.Type = "UpToFirst"

doc.recompute()
